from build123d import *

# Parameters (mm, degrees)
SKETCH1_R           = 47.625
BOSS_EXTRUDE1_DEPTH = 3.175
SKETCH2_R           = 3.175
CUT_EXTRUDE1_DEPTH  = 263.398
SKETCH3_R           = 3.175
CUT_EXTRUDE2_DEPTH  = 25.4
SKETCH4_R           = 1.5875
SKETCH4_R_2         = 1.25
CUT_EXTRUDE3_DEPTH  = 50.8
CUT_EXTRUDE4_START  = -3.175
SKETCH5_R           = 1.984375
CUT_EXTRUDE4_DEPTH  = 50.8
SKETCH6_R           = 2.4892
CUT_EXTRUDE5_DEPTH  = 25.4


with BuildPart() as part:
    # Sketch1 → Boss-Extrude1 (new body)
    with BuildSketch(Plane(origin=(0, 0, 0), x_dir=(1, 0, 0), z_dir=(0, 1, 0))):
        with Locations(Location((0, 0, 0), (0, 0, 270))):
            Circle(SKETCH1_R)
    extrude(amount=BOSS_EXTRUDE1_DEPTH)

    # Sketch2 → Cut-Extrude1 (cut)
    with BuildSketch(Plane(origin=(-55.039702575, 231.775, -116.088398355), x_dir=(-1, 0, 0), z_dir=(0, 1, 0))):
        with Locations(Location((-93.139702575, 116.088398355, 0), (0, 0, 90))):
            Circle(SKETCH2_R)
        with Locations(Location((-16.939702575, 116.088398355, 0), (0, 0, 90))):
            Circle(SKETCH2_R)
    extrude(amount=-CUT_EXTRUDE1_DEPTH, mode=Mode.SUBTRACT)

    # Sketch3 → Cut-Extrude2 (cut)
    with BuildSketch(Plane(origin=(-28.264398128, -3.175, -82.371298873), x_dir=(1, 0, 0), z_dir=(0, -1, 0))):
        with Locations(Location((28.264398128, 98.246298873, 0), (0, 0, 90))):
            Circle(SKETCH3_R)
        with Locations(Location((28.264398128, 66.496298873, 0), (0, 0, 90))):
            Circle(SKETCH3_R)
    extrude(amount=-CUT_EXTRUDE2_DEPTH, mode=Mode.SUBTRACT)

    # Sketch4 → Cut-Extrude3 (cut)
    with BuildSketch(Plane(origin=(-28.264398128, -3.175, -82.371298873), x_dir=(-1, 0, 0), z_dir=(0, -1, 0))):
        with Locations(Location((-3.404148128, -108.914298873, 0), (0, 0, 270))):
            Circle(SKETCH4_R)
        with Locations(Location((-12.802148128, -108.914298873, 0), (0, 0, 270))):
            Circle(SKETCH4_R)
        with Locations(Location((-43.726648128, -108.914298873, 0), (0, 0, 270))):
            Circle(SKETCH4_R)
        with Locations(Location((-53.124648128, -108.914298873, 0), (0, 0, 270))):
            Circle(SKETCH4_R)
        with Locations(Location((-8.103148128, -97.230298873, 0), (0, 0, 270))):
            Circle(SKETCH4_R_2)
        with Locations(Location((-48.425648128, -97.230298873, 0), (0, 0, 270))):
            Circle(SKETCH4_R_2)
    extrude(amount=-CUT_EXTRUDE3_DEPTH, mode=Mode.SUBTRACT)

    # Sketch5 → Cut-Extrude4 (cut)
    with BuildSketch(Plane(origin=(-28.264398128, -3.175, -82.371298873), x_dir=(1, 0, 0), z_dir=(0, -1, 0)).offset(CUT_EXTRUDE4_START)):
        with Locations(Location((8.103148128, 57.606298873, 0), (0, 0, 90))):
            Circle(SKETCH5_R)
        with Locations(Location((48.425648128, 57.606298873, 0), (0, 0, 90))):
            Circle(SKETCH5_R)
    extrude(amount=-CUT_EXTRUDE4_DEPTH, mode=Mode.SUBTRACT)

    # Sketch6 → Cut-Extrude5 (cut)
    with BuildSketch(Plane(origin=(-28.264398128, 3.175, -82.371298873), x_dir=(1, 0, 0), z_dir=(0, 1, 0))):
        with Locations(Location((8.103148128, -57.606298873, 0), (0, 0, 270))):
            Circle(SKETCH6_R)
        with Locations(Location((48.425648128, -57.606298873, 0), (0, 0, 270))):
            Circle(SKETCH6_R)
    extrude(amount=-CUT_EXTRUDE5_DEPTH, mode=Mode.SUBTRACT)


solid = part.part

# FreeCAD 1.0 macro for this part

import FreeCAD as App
import Part
import Sketcher
Q = App.Units.Quantity

doc = App.newDocument("Part")
body = doc.addObject("PartDesign::Body", "Body")

sketch1 = doc.addObject("Sketcher::SketchObject", "Sketch")
body.addObject(sketch1)
sketch1.AttachmentSupport = (doc.XZ_Plane, [""])
sketch1.MapMode = "FlatFace"
sketch1.addGeometry(Part.Circle(App.Vector(0, 0, 0), App.Vector(0, 0, 1), 48), False)
sketch1.addConstraint(Sketcher.Constraint("Coincident", 0, 3, -1, 1))
sketch1.addConstraint(Sketcher.Constraint("Diameter", 0, Q("3.75 in")))
pad1 = doc.addObject("PartDesign::Pad", "Pad")
body.addObject(pad1)
pad1.Profile = sketch1
pad1.Length = Q("0.125 in")
pad1.Reversed = True

sketch2 = doc.addObject("Sketcher::SketchObject", "Sketch001")
body.addObject(sketch2)
sketch2.AttachmentSupport = (doc.XZ_Plane, [""])
sketch2.MapMode = "FlatFace"
sketch2.AttachmentOffset = App.Placement(App.Vector(0, 0, -9.125 * 25.4), App.Rotation())
sketch2.addGeometry(Part.Circle(App.Vector(38.1, 0, 0), App.Vector(0, 0, 1), 3.2), False)
sketch2.addGeometry(Part.Circle(App.Vector(-38.1, 0, 0), App.Vector(0, 0, 1), 3.2), False)
sketch2.addConstraint(Sketcher.Constraint("Equal", 0, 1))
sketch2.addConstraint(Sketcher.Constraint("Symmetric", 0, 3, 1, 3, -1, 1))
sketch2.addConstraint(Sketcher.Constraint("PointOnObject", 0, 3, -1))
sketch2.addConstraint(Sketcher.Constraint("Diameter", 0, Q("0.25 in")))
sketch2.addConstraint(Sketcher.Constraint("DistanceX", 1, 3, 0, 3, Q("3 in")))
pocket1 = doc.addObject("PartDesign::Pocket", "Pocket")
body.addObject(pocket1)
pocket1.Profile = sketch2
pocket1.Length = Q("10.37 in")
pocket1.Reversed = True

sketch3 = doc.addObject("Sketcher::SketchObject", "Sketch002")
body.addObject(sketch3)
sketch3.AttachmentSupport = (doc.XZ_Plane, [""])
sketch3.MapMode = "FlatFace"
sketch3.AttachmentOffset = App.Placement(App.Vector(0, 0, 0.125 * 25.4), App.Rotation())
sketch3.addGeometry(Part.Circle(App.Vector(0, 15.9, 0), App.Vector(0, 0, 1), 3.2), False)
sketch3.addGeometry(Part.Circle(App.Vector(0, -15.9, 0), App.Vector(0, 0, 1), 3.2), False)
sketch3.addConstraint(Sketcher.Constraint("Equal", 0, 1))
sketch3.addConstraint(Sketcher.Constraint("Symmetric", 0, 3, 1, 3, -1, 1))
sketch3.addConstraint(Sketcher.Constraint("PointOnObject", 0, 3, -2))
sketch3.addConstraint(Sketcher.Constraint("Diameter", 0, Q("0.25 in")))
sketch3.addConstraint(Sketcher.Constraint("DistanceY", 1, 3, 0, 3, Q("1.25 in")))
pocket2 = doc.addObject("PartDesign::Pocket", "Pocket001")
body.addObject(pocket2)
pocket2.Profile = sketch3
pocket2.Length = Q("1 in")

sketch4 = doc.addObject("Sketcher::SketchObject", "Sketch003")
body.addObject(sketch4)
sketch4.AttachmentSupport = (doc.XZ_Plane, [""])
sketch4.MapMode = "FlatFace"
sketch4.AttachmentOffset = App.Placement(App.Vector(0, 0, 0.125 * 25.4), App.Rotation())
sketch4.addGeometry(Part.Circle(App.Vector(-24.9, 26.5, 0), App.Vector(0, 0, 1), 1.6), False)
sketch4.addGeometry(Part.Circle(App.Vector(-15.5, 26.5, 0), App.Vector(0, 0, 1), 1.6), False)
sketch4.addGeometry(Part.Circle(App.Vector(15.5, 26.5, 0), App.Vector(0, 0, 1), 1.6), False)
sketch4.addGeometry(Part.Circle(App.Vector(24.9, 26.5, 0), App.Vector(0, 0, 1), 1.6), False)
sketch4.addGeometry(Part.Circle(App.Vector(-20.2, 14.9, 0), App.Vector(0, 0, 1), 1.2), False)
sketch4.addGeometry(Part.Circle(App.Vector(20.2, 14.9, 0), App.Vector(0, 0, 1), 1.2), False)
sketch4.addConstraint(Sketcher.Constraint("Equal", 0, 1))
sketch4.addConstraint(Sketcher.Constraint("Equal", 1, 2))
sketch4.addConstraint(Sketcher.Constraint("Equal", 2, 3))
sketch4.addConstraint(Sketcher.Constraint("Equal", 4, 5))
sketch4.addConstraint(Sketcher.Constraint("Symmetric", 1, 3, 2, 3, -2))
sketch4.addConstraint(Sketcher.Constraint("Symmetric", 0, 3, 3, 3, -2))
sketch4.addConstraint(Sketcher.Constraint("Symmetric", 4, 3, 5, 3, -2))
sketch4.addConstraint(Sketcher.Constraint("Horizontal", 0, 3, 1, 3))
sketch4.addConstraint(Sketcher.Constraint("Diameter", 0, Q("0.125 in")))
sketch4.addConstraint(Sketcher.Constraint("Diameter", 4, 2.5))
sketch4.addConstraint(Sketcher.Constraint("DistanceX", 0, 3, 1, 3, Q("0.37 in")))
sketch4.addConstraint(Sketcher.Constraint("DistanceY", 4, 3, 1, 3, Q("0.46 in")))
sketch4.addConstraint(Sketcher.Constraint("DistanceY", -1, 1, 0, 3, Q("1.045 in")))
sketch4.addConstraint(Sketcher.Constraint("DistanceX", 4, 3, 1, 3, Q("0.185 in")))
sketch4.addConstraint(Sketcher.Constraint("DistanceX", 1, 3, 2, 3, Q("1.2175 in")))
pocket3 = doc.addObject("PartDesign::Pocket", "Pocket002")
body.addObject(pocket3)
pocket3.Profile = sketch4
pocket3.Length = Q("2 in")

sketch5 = doc.addObject("Sketcher::SketchObject", "Sketch004")
body.addObject(sketch5)
sketch5.AttachmentSupport = (doc.XZ_Plane, [""])
sketch5.MapMode = "FlatFace"
sketch5.addGeometry(Part.Circle(App.Vector(-20.2, -24.8, 0), App.Vector(0, 0, 1), 2), False)
sketch5.addGeometry(Part.Circle(App.Vector(20.2, -24.8, 0), App.Vector(0, 0, 1), 2), False)
sketch5.addConstraint(Sketcher.Constraint("Equal", 0, 1))
sketch5.addConstraint(Sketcher.Constraint("Symmetric", 0, 3, 1, 3, -2))
sketch5.addConstraint(Sketcher.Constraint("Diameter", 0, Q("0.15625 in")))
sketch5.addConstraint(Sketcher.Constraint("DistanceY", 0, 3, -1, 1, Q("0.975 in")))
sketch5.addConstraint(Sketcher.Constraint("DistanceX", 0, 3, 1, 3, Q("1.5875 in")))
pocket4 = doc.addObject("PartDesign::Pocket", "Pocket003")
body.addObject(pocket4)
pocket4.Profile = sketch5
pocket4.Length = Q("2 in")

sketch6 = doc.addObject("Sketcher::SketchObject", "Sketch005")
body.addObject(sketch6)
sketch6.AttachmentSupport = (doc.XZ_Plane, [""])
sketch6.MapMode = "FlatFace"
sketch6.AttachmentOffset = App.Placement(App.Vector(0, 0, -0.125 * 25.4), App.Rotation())
sketch6.addGeometry(Part.Circle(App.Vector(-20.2, -24.8, 0), App.Vector(0, 0, 1), 2.5), False)
sketch6.addGeometry(Part.Circle(App.Vector(20.2, -24.8, 0), App.Vector(0, 0, 1), 2.5), False)
sketch6.addConstraint(Sketcher.Constraint("Equal", 0, 1))
sketch6.addConstraint(Sketcher.Constraint("Symmetric", 0, 3, 1, 3, -2))
sketch6.addConstraint(Sketcher.Constraint("Diameter", 0, Q("0.196 in")))
sketch6.addConstraint(Sketcher.Constraint("DistanceY", 0, 3, -1, 1, Q("0.975 in")))
sketch6.addConstraint(Sketcher.Constraint("DistanceX", 0, 3, 1, 3, Q("1.5875 in")))
pocket5 = doc.addObject("PartDesign::Pocket", "Pocket004")
body.addObject(pocket5)
pocket5.Profile = sketch6
pocket5.Length = Q("1 in")
pocket5.Reversed = True

doc.recompute()
